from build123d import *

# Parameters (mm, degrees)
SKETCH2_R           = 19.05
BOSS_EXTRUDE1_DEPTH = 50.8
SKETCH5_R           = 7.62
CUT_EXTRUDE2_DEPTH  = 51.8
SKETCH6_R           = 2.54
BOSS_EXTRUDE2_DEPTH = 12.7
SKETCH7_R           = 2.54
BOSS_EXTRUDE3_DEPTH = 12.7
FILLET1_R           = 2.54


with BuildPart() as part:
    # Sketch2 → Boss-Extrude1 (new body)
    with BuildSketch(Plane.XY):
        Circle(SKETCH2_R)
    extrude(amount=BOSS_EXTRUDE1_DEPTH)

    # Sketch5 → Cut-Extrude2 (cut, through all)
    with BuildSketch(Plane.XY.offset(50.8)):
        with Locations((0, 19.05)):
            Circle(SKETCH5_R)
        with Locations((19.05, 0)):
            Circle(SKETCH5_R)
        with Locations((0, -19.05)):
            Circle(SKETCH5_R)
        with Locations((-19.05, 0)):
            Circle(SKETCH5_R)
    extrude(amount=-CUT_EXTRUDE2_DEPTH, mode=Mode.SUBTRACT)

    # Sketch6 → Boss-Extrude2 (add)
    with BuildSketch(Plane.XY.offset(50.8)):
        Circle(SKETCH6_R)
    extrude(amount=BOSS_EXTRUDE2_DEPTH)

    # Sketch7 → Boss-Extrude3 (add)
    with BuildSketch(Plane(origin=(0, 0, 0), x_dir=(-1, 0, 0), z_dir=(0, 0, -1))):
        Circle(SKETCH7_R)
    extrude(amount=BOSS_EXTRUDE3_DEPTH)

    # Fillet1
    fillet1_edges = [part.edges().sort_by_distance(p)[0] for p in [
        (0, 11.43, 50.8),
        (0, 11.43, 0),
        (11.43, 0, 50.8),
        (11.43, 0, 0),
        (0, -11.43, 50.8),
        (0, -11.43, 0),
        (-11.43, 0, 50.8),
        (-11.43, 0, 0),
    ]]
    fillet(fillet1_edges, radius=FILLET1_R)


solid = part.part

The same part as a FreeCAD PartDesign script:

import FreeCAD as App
import Part
import Sketcher
Q = App.Units.Quantity


def edges_at(feature, points):
    """Names of the edges that pass closest to the given points."""
    edges = feature.Shape.Edges
    near = lambda p: min(range(len(edges)), key=lambda i: edges[i].distToShape(Part.Vertex(*p))[0])
    return sorted({f"Edge{near(p) + 1}" for p in points})

doc = App.newDocument("Part")
body = doc.addObject("PartDesign::Body", "Body")

sketch1 = body.newObject("Sketcher::SketchObject", "Sketch")
sketch1.AttachmentSupport = (doc.getObject("XY_Plane"), [""])
sketch1.MapMode = "FlatFace"
sketch1.addGeometry(Part.Circle(App.Vector(0, 0, 0), App.Vector(0, 0, 1), 19), False)
sketch1.addConstraint([
    Sketcher.Constraint("Coincident", 0, 3, -1, 1),
    Sketcher.Constraint("Diameter", 0, Q("1.5 in")),
])
pad1 = body.newObject("PartDesign::Pad", "Pad")
pad1.Profile = sketch1
pad1.Length = Q("2 in")

sketch2 = body.newObject("Sketcher::SketchObject", "Sketch001")
sketch2.AttachmentSupport = (doc.getObject("XY_Plane"), [""])
sketch2.MapMode = "FlatFace"
sketch2.AttachmentOffset = App.Placement(App.Vector(0, 0, 2 * 25.4), App.Rotation())
sketch2.addGeometry([
    Part.Circle(App.Vector(0, 19, 0), App.Vector(0, 0, 1), 8),
    Part.Circle(App.Vector(19, 0, 0), App.Vector(0, 0, 1), 8),
    Part.Circle(App.Vector(0, -19, 0), App.Vector(0, 0, 1), 8),
    Part.Circle(App.Vector(-19, 0, 0), App.Vector(0, 0, 1), 8),
], False)
sketch2.addConstraint([
    Sketcher.Constraint("Equal", 0, 1),
    Sketcher.Constraint("Equal", 1, 2),
    Sketcher.Constraint("Equal", 2, 3),
    Sketcher.Constraint("Symmetric", 0, 3, 2, 3, -1, 1),
    Sketcher.Constraint("Symmetric", 1, 3, 3, 3, -1, 1),
    Sketcher.Constraint("PointOnObject", 0, 3, -2),
    Sketcher.Constraint("PointOnObject", 1, 3, -1),
    Sketcher.Constraint("Diameter", 0, Q("0.6 in")),
    Sketcher.Constraint("DistanceY", 2, 3, 0, 3, Q("1.5 in")),
    Sketcher.Constraint("DistanceX", 3, 3, 1, 3, Q("1.5 in")),
])
pocket1 = body.newObject("PartDesign::Pocket", "Pocket")
pocket1.Profile = sketch2
pocket1.Type = "ThroughAll"

sketch3 = body.newObject("Sketcher::SketchObject", "Sketch002")
sketch3.AttachmentSupport = (doc.getObject("XY_Plane"), [""])
sketch3.MapMode = "FlatFace"
sketch3.AttachmentOffset = App.Placement(App.Vector(0, 0, 2 * 25.4), App.Rotation())
sketch3.addGeometry(Part.Circle(App.Vector(0, 0, 0), App.Vector(0, 0, 1), 2.5), False)
sketch3.addConstraint([
    Sketcher.Constraint("Coincident", 0, 3, -1, 1),
    Sketcher.Constraint("Diameter", 0, Q("0.2 in")),
])
pad2 = body.newObject("PartDesign::Pad", "Pad001")
pad2.Profile = sketch3
pad2.Length = Q("0.5 in")

sketch4 = body.newObject("Sketcher::SketchObject", "Sketch003")
sketch4.AttachmentSupport = (doc.getObject("XY_Plane"), [""])
sketch4.MapMode = "FlatFace"
sketch4.addGeometry(Part.Circle(App.Vector(0, 0, 0), App.Vector(0, 0, 1), 2.5), False)
sketch4.addConstraint([
    Sketcher.Constraint("Coincident", 0, 3, -1, 1),
    Sketcher.Constraint("Diameter", 0, Q("0.2 in")),
])
pad3 = body.newObject("PartDesign::Pad", "Pad002")
pad3.Profile = sketch4
pad3.Length = Q("0.5 in")
pad3.Reversed = True
doc.recompute()

fillet = body.newObject("PartDesign::Fillet", "Fillet")
fillet.Base = (pad3, edges_at(pad3, [
    (0, 11.43, 50.8),
    (0, 11.43, 0),
    (11.43, 0, 50.8),
    (11.43, 0, 0),
    (0, -11.43, 50.8),
    (0, -11.43, 0),
    (-11.43, 0, 50.8),
    (-11.43, 0, 0),
]))
fillet.Radius = Q("0.1 in")

doc.recompute()
